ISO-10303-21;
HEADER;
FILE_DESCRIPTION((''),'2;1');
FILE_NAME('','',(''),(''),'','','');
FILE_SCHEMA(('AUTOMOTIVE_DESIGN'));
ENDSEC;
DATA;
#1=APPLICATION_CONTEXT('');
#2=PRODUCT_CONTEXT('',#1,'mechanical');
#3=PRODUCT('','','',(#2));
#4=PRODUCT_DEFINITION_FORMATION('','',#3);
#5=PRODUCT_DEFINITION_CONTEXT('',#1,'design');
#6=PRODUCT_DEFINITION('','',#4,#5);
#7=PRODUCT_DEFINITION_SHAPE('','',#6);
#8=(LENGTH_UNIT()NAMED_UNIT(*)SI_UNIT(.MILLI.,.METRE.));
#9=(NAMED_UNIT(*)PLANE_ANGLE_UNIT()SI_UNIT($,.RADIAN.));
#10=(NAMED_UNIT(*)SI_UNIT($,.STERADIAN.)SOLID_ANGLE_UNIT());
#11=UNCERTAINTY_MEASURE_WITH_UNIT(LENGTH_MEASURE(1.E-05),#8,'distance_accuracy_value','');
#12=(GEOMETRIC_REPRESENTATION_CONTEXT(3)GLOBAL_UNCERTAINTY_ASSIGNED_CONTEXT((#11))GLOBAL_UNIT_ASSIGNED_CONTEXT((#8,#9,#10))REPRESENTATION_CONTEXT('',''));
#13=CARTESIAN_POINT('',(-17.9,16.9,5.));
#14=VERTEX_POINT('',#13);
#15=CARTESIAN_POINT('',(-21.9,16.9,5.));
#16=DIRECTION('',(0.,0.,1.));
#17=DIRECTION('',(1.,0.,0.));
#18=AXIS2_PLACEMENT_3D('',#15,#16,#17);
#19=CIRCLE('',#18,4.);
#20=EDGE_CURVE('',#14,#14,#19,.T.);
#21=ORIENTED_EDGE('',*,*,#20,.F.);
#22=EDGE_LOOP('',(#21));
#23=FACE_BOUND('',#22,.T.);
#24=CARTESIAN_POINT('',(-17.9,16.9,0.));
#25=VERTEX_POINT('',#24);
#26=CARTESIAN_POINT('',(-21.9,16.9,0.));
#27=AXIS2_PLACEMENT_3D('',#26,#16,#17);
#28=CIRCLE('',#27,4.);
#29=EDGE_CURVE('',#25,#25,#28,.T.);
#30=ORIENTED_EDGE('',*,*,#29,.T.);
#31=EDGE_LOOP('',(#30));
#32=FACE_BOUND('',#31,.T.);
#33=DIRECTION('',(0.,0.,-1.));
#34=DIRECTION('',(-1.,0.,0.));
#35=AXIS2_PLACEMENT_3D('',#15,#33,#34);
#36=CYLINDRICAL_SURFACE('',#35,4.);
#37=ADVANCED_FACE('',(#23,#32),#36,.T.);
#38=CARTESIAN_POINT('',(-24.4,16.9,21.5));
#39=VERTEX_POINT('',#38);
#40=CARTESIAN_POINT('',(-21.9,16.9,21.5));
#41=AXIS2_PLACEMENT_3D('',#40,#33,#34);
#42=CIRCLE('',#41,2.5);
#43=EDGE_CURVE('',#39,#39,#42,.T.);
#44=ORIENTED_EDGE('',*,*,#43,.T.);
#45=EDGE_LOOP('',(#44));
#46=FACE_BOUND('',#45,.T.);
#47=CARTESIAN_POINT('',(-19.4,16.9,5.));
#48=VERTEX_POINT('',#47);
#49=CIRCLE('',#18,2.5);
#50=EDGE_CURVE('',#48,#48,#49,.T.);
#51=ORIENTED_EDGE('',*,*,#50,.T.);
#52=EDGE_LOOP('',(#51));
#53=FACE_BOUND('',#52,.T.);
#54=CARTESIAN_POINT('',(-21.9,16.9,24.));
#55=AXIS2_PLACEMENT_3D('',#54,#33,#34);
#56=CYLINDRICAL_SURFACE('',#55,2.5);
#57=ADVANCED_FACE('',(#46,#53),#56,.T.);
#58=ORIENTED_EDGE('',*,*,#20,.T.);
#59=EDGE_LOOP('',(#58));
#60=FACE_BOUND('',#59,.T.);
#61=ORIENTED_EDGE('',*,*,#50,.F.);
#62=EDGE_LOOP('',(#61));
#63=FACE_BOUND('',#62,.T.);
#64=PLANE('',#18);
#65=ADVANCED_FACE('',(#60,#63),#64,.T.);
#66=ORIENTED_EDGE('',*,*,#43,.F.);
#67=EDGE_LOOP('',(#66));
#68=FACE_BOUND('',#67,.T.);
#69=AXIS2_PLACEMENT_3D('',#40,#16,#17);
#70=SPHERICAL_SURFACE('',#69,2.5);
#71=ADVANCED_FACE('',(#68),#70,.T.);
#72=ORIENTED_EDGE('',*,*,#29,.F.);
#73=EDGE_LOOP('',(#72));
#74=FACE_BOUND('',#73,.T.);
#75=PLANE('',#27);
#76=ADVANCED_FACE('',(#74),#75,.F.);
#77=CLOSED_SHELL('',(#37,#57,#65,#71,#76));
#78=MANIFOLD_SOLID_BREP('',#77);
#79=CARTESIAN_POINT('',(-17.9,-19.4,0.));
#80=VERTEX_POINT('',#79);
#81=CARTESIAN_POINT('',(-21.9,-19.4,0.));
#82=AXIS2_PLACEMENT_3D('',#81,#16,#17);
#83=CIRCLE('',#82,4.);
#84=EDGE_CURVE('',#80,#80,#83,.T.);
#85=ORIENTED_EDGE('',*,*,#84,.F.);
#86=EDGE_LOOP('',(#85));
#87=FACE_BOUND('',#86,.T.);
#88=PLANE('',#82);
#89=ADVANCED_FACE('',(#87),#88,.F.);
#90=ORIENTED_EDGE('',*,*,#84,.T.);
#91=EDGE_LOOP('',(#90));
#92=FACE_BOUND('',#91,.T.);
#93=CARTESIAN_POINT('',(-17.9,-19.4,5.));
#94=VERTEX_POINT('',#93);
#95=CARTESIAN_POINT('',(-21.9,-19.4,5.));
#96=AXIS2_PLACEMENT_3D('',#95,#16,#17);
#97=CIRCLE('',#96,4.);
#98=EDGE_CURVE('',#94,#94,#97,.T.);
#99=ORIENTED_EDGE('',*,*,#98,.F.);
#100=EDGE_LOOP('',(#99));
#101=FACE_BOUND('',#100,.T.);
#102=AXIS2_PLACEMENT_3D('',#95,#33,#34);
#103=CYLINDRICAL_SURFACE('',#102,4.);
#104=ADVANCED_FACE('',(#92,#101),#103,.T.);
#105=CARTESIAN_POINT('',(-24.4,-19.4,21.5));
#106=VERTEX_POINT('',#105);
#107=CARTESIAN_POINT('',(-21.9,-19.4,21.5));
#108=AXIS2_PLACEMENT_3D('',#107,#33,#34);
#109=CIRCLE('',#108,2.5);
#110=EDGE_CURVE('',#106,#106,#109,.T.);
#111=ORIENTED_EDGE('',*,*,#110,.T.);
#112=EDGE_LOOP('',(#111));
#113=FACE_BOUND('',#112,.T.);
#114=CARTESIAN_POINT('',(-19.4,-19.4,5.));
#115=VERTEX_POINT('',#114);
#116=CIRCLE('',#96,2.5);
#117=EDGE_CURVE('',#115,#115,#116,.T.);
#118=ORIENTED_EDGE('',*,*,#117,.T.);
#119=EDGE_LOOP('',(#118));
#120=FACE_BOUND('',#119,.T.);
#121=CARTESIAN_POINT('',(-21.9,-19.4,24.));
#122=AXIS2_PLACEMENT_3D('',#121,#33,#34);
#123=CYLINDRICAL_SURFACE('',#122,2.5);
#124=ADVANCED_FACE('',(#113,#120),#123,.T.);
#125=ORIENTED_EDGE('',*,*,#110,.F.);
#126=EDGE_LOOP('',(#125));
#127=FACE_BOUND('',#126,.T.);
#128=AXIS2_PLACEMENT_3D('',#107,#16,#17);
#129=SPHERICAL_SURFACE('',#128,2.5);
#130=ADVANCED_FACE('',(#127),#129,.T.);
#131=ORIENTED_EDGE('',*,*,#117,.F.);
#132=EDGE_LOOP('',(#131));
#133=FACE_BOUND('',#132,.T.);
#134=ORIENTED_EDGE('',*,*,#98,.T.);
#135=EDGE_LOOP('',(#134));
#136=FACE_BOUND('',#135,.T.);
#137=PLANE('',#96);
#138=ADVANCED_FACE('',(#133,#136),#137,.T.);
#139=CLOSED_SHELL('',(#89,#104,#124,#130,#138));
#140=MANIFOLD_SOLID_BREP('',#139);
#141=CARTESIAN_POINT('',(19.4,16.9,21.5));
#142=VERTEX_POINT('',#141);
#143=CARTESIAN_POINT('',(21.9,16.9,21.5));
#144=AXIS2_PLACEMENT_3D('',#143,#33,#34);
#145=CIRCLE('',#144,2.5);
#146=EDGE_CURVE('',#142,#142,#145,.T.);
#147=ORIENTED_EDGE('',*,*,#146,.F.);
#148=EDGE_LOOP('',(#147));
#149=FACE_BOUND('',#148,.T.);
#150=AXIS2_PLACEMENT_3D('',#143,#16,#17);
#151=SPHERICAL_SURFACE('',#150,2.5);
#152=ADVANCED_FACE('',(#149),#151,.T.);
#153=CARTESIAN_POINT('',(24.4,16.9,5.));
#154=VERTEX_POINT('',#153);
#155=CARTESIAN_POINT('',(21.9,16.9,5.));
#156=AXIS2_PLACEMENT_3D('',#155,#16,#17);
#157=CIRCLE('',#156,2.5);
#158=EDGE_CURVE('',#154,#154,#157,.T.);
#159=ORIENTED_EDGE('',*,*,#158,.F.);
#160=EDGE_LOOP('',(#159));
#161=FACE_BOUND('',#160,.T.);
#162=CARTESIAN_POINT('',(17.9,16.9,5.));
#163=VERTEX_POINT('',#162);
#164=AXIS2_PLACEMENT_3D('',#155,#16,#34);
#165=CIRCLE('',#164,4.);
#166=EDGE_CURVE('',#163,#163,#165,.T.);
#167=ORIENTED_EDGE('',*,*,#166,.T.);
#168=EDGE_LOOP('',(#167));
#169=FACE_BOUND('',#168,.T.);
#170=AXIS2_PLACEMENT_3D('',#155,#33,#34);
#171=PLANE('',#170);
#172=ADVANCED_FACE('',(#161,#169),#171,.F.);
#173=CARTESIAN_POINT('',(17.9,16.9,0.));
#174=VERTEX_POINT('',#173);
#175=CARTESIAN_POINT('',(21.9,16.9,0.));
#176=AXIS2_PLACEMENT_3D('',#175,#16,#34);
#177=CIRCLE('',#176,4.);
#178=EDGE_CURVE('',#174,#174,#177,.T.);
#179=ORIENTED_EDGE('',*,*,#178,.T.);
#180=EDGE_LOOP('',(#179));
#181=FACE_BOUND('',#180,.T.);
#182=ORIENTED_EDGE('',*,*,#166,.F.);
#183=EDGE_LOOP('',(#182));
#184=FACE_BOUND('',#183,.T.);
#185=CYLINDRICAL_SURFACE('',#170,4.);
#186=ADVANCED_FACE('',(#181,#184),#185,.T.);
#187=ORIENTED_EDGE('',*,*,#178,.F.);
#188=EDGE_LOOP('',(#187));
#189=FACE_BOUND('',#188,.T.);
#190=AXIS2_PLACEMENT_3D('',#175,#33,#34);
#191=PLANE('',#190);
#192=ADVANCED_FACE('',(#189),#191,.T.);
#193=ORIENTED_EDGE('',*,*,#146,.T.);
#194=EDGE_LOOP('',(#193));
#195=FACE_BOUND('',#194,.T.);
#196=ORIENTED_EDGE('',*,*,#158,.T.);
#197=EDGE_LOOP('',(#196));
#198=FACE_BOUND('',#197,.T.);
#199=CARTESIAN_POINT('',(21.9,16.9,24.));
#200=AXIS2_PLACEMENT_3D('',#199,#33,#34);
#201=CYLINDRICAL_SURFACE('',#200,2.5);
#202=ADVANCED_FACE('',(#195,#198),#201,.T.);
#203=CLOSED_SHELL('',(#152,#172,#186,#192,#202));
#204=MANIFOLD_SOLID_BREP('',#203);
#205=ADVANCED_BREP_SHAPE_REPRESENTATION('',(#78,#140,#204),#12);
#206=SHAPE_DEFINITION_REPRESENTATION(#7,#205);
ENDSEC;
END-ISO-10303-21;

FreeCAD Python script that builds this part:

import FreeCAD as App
import Part
import Sketcher
Q = App.Units.Quantity


def edges_at(feature, points):
    """Names of the edges that pass closest to the given points."""
    edges = feature.Shape.Edges
    near = lambda p: min(range(len(edges)), key=lambda i: edges[i].distToShape(Part.Vertex(*p))[0])
    return sorted({f"Edge{near(p) + 1}" for p in points})

doc = App.newDocument("Part")
body = doc.addObject("PartDesign::Body", "Body")

sketch1 = body.newObject("Sketcher::SketchObject", "Sketch")
sketch1.AttachmentSupport = (doc.getObject("XY_Plane"), [""])
sketch1.MapMode = "FlatFace"
sketch1.addGeometry(Part.Circle(App.Vector(-21.9, 16.9, 0), App.Vector(0, 0, 1), 4), False)
sketch1.addConstraint([
    Sketcher.Constraint("Diameter", 0, Q("8 mm")),
    Sketcher.Constraint("DistanceX", 0, 3, -1, 1, Q("21.9 mm")),
    Sketcher.Constraint("DistanceY", -1, 1, 0, 3, Q("16.9 mm")),
])
pad1 = body.newObject("PartDesign::Pad", "Pad")
pad1.Profile = sketch1
pad1.Length = 5
body2 = doc.addObject("PartDesign::Body", "Body001")

sketch2 = body2.newObject("Sketcher::SketchObject", "Sketch001")
sketch2.AttachmentSupport = (doc.getObject("XY_Plane001"), [""])
sketch2.MapMode = "FlatFace"
sketch2.addGeometry(Part.Circle(App.Vector(-21.9, -19.4, 0), App.Vector(0, 0, 1), 4), False)
sketch2.addConstraint([
    Sketcher.Constraint("Diameter", 0, Q("8 mm")),
    Sketcher.Constraint("DistanceX", 0, 3, -1, 1, Q("21.9 mm")),
    Sketcher.Constraint("DistanceY", 0, 3, -1, 1, Q("19.4 mm")),
])
pad2 = body2.newObject("PartDesign::Pad", "Pad001")
pad2.Profile = sketch2
pad2.Length = 5
body3 = doc.addObject("PartDesign::Body", "Body002")

sketch3 = body3.newObject("Sketcher::SketchObject", "Sketch002")
sketch3.AttachmentSupport = (doc.getObject("XY_Plane002"), [""])
sketch3.MapMode = "FlatFace"
sketch3.addGeometry(Part.Circle(App.Vector(21.9, 16.9, 0), App.Vector(0, 0, 1), 4), False)
sketch3.addConstraint([
    Sketcher.Constraint("Diameter", 0, Q("8 mm")),
    Sketcher.Constraint("DistanceX", -1, 1, 0, 3, Q("21.9 mm")),
    Sketcher.Constraint("DistanceY", -1, 1, 0, 3, Q("16.9 mm")),
])
pad3 = body3.newObject("PartDesign::Pad", "Pad002")
pad3.Profile = sketch3
pad3.Length = 5
body.AllowCompound = True
doc.recompute()

boolean = body.newObject("PartDesign::Boolean", "Boolean")
boolean.Type = "Fuse"
boolean.addObjects([body2])
doc.recompute()

boolean2 = body.newObject("PartDesign::Boolean", "Boolean001")
boolean2.Type = "Fuse"
boolean2.addObjects([body3])

sketch4 = body.newObject("Sketcher::SketchObject", "Sketch003")
sketch4.AttachmentSupport = (doc.getObject("XY_Plane"), [""])
sketch4.MapMode = "FlatFace"
sketch4.AttachmentOffset = App.Placement(App.Vector(0, 0, 5), App.Rotation())
sketch4.addGeometry([
    Part.Circle(App.Vector(-21.9, 16.9, 0), App.Vector(0, 0, 1), 2.5),
    Part.Circle(App.Vector(21.9, 16.9, 0), App.Vector(0, 0, 1), 2.5),
    Part.Circle(App.Vector(-21.9, -19.4, 0), App.Vector(0, 0, 1), 2.5),
], False)
sketch4.addConstraint([
    Sketcher.Constraint("Equal", 0, 1),
    Sketcher.Constraint("Equal", 1, 2),
    Sketcher.Constraint("Symmetric", 0, 3, 1, 3, -2),
    Sketcher.Constraint("Vertical", 0, 3, 2, 3),
    Sketcher.Constraint("Diameter", 0, Q("5 mm")),
    Sketcher.Constraint("DistanceX", 0, 3, -1, 1, Q("21.9 mm")),
    Sketcher.Constraint("DistanceY", -1, 1, 0, 3, Q("16.9 mm")),
    Sketcher.Constraint("DistanceY", 2, 3, -1, 1, Q("19.4 mm")),
])
pad4 = body.newObject("PartDesign::Pad", "Pad003")
pad4.Profile = sketch4
pad4.Length = 19
doc.recompute()

fillet = body.newObject("PartDesign::Fillet", "Fillet")
fillet.Base = (pad4, edges_at(pad4, [(-24.4, 16.9, 24)]))
fillet.Radius = 2.5
doc.recompute()

fillet2 = body.newObject("PartDesign::Fillet", "Fillet001")
fillet2.Base = (fillet, edges_at(fillet, [(-24.4, -19.4, 24)]))
fillet2.Radius = 2.5
doc.recompute()

fillet3 = body.newObject("PartDesign::Fillet", "Fillet002")
fillet3.Base = (fillet2, edges_at(fillet2, [(19.4, 16.9, 24)]))
fillet3.Radius = 2.5

doc.recompute()
